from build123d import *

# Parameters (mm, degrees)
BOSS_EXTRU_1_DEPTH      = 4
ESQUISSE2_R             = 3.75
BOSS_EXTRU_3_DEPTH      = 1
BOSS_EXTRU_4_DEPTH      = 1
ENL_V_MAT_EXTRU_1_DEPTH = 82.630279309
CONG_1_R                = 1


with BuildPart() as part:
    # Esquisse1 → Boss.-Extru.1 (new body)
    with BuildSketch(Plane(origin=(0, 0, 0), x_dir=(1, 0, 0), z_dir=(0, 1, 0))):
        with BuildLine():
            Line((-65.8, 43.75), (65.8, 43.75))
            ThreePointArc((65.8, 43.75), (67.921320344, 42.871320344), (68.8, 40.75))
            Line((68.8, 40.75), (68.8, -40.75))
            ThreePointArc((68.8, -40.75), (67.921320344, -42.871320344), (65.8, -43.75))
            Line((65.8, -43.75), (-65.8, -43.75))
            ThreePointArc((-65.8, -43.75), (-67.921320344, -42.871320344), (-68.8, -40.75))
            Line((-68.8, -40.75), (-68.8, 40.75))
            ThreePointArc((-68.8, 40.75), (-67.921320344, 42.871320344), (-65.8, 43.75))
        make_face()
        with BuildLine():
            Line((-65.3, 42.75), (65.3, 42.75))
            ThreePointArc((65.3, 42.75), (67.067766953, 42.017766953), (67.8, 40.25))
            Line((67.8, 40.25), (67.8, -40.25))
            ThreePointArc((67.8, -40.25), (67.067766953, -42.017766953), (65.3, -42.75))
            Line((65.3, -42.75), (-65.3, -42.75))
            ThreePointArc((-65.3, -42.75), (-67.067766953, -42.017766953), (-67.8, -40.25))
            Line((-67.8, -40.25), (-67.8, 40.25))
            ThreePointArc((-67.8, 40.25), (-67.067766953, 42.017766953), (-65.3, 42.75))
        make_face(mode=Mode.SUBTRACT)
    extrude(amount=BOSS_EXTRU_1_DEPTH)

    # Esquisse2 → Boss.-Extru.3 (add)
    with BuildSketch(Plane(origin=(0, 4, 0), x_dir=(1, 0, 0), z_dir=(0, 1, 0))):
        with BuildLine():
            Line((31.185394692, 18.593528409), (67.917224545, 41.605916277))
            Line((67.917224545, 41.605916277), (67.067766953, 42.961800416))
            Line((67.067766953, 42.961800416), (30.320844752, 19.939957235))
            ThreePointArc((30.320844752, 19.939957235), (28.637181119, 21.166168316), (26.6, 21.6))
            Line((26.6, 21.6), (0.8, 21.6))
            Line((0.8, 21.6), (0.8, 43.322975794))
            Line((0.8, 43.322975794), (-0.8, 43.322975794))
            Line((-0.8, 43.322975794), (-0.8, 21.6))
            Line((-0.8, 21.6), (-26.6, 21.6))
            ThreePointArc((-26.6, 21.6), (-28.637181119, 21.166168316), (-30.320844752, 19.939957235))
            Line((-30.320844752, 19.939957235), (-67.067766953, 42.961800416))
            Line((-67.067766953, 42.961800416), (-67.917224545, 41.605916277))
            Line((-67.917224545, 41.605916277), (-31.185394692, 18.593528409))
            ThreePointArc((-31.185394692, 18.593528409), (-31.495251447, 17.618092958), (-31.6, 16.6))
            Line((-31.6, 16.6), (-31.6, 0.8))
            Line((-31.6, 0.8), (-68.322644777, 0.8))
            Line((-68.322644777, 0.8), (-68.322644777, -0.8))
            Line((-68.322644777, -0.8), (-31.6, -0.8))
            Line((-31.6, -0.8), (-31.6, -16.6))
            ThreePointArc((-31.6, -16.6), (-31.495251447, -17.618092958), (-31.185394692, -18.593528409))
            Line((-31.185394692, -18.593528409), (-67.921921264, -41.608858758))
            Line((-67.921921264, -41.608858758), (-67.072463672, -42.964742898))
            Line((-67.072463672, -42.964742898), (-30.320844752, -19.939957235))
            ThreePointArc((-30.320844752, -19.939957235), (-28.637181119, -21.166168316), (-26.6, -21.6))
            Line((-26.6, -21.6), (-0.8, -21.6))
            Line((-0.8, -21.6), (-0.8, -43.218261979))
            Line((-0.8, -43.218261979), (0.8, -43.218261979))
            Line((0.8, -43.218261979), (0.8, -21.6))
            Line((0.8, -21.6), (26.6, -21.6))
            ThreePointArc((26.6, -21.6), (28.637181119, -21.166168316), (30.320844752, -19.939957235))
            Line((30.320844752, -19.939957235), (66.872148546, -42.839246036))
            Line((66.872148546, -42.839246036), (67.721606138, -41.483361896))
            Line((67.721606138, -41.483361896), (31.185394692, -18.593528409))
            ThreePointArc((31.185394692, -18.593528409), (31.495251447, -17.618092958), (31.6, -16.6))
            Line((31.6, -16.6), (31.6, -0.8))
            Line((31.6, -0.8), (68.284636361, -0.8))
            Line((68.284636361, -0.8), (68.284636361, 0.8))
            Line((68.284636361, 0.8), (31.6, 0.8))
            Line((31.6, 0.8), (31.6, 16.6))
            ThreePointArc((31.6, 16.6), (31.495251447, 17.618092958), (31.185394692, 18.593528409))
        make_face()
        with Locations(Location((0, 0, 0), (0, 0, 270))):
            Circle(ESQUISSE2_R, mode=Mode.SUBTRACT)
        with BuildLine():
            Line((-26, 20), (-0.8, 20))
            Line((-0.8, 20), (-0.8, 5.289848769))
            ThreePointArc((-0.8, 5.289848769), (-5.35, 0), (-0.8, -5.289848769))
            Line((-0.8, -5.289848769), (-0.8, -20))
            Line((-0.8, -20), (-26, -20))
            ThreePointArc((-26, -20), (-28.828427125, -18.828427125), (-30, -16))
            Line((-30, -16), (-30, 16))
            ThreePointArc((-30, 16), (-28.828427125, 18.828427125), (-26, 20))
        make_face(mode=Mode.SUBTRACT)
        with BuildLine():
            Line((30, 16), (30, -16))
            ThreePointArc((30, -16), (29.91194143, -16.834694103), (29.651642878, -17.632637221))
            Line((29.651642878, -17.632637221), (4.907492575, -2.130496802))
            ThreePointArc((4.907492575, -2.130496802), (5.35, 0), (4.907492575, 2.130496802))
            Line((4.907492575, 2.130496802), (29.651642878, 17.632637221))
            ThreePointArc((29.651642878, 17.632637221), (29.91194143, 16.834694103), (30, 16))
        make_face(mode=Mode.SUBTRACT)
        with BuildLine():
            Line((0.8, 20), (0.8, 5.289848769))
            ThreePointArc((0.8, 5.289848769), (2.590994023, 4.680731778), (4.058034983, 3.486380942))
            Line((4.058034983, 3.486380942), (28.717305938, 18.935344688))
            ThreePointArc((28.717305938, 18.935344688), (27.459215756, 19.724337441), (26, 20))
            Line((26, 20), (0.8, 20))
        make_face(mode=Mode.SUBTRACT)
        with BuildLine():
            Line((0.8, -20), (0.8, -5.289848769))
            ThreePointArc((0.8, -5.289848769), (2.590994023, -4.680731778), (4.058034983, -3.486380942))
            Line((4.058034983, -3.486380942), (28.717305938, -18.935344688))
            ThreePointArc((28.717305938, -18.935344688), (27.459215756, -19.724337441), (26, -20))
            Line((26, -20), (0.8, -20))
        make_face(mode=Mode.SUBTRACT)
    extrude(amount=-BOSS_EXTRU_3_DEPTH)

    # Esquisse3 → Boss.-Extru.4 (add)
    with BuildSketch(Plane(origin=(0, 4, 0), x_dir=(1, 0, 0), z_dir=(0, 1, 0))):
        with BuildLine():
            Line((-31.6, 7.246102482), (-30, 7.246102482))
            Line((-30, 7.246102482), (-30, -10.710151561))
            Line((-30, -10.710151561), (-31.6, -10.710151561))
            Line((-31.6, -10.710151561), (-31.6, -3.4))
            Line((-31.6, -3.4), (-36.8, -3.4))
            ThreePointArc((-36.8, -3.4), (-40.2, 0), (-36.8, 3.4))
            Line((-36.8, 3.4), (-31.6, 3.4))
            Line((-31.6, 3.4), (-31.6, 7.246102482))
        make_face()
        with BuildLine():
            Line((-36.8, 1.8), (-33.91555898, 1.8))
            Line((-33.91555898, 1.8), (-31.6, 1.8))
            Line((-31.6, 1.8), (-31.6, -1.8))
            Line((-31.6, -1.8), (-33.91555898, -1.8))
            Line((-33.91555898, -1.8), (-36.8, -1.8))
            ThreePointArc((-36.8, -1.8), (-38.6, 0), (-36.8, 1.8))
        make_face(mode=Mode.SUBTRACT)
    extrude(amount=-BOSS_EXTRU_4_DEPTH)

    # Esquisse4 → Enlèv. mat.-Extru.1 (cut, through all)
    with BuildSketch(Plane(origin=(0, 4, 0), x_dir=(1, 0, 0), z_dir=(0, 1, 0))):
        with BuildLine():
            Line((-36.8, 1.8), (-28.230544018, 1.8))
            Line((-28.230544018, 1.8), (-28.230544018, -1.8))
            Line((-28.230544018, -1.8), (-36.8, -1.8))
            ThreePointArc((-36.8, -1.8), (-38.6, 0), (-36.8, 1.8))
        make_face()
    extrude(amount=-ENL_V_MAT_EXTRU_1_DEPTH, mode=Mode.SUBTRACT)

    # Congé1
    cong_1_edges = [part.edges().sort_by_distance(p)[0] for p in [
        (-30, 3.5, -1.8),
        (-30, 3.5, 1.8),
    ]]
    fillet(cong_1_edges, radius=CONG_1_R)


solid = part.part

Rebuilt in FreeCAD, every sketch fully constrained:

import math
import FreeCAD as App
import Part
import Sketcher

V = App.Vector


def edges_at(feature, points):
    """Names of the edges that pass closest to the given points."""
    edges = feature.Shape.Edges
    near = lambda p: min(range(len(edges)), key=lambda i: edges[i].distToShape(Part.Vertex(*p))[0])
    return sorted({f"Edge{near(p) + 1}" for p in points})

doc = App.newDocument("Part")
params = doc.addObject("Spreadsheet::Sheet", "Params")
for row, (alias, value) in enumerate([
    ("sketch1_radius", "3 mm"),
    ("sketch1_radius2", "2.5 mm"),
    ("sketch1_width", "131.6 mm"),
    ("sketch1_width2", "130.6 mm"),
    ("sketch1_height", "81.5 mm"),
    ("pad1_length", "4 mm"),
    ("sketch2_radius", "5 mm"),
    ("sketch2_radius2", "5 mm"),
    ("sketch2_radius3", "5 mm"),
    ("sketch2_radius4", "5 mm"),
    ("sketch2_radius5", "5 mm"),
    ("pad2_length", "1 mm"),
    ("sketch3_radius", "3.4 mm"),
    ("sketch3_radius2", "1.8 mm"),
    ("sketch3_width", "1.6 mm"),
    ("sketch3_width2", "5.2 mm"),
    ("pad3_length", "1 mm"),
    ("sketch4_radius", "1.8 mm"),
    ("fillet_radius", "1 mm"),
], start=1):
    params.set(f"A{row}", alias)
    params.set(f"B{row}", "=" + value)
    params.setAlias(f"B{row}", alias)

body = doc.addObject("PartDesign::Body", "Body")

sketch1 = body.newObject("Sketcher::SketchObject", "Sketch")
sketch1.AttachmentSupport = (doc.getObject("XZ_Plane"), [""])
sketch1.MapMode = "FlatFace"
sketch1.addGeometry([
    Part.LineSegment(V(65.8, -43.8, 0), V(-65.8, -43.8, 0)),
    Part.ArcOfCircle(Part.Circle(V(-65.8, -40.8, 0), V(0, 0, 1), 3), math.radians(180), math.radians(270)),
    Part.LineSegment(V(-68.8, -40.8, 0), V(-68.8, 40.8, 0)),
    Part.ArcOfCircle(Part.Circle(V(-65.8, 40.8, 0), V(0, 0, 1), 3), math.radians(90), math.radians(180)),
    Part.LineSegment(V(-65.8, 43.8, 0), V(65.8, 43.8, 0)),
    Part.ArcOfCircle(Part.Circle(V(65.8, 40.8, 0), V(0, 0, 1), 3), math.radians(0), math.radians(90)),
    Part.LineSegment(V(68.8, 40.8, 0), V(68.8, -40.8, 0)),
    Part.ArcOfCircle(Part.Circle(V(65.8, -40.8, 0), V(0, 0, 1), 3), math.radians(-90), math.radians(0)),
    Part.LineSegment(V(-65.3, -42.8, 0), V(65.3, -42.8, 0)),
    Part.ArcOfCircle(Part.Circle(V(65.3, -40.2, 0), V(0, 0, 1), 2.5), math.radians(-90), math.radians(0)),
    Part.LineSegment(V(67.8, -40.2, 0), V(67.8, 40.2, 0)),
    Part.ArcOfCircle(Part.Circle(V(65.3, 40.2, 0), V(0, 0, 1), 2.5), math.radians(0), math.radians(90)),
    Part.LineSegment(V(65.3, 42.8, 0), V(-65.3, 42.8, 0)),
    Part.ArcOfCircle(Part.Circle(V(-65.3, 40.2, 0), V(0, 0, 1), 2.5), math.radians(90), math.radians(180)),
    Part.LineSegment(V(-67.8, 40.2, 0), V(-67.8, -40.2, 0)),
    Part.ArcOfCircle(Part.Circle(V(-65.3, -40.2, 0), V(0, 0, 1), 2.5), math.radians(180), math.radians(270)),
], False)
sketch1.addConstraint([
    Sketcher.Constraint("Tangent", 0, 2, 1, 2),
    Sketcher.Constraint("Tangent", 1, 1, 2, 1),
    Sketcher.Constraint("Tangent", 2, 2, 3, 2),
    Sketcher.Constraint("Tangent", 3, 1, 4, 1),
    Sketcher.Constraint("Tangent", 4, 2, 5, 2),
    Sketcher.Constraint("Tangent", 5, 1, 6, 1),
    Sketcher.Constraint("Tangent", 6, 2, 7, 2),
    Sketcher.Constraint("Tangent", 7, 1, 0, 1),
    Sketcher.Constraint("Tangent", 8, 2, 9, 1),
    Sketcher.Constraint("Tangent", 9, 2, 10, 1),
    Sketcher.Constraint("Tangent", 10, 2, 11, 1),
    Sketcher.Constraint("Tangent", 11, 2, 12, 1),
    Sketcher.Constraint("Tangent", 12, 2, 13, 1),
    Sketcher.Constraint("Tangent", 13, 2, 14, 1),
    Sketcher.Constraint("Tangent", 14, 2, 15, 1),
    Sketcher.Constraint("Tangent", 15, 2, 8, 1),
    Sketcher.Constraint("Horizontal", 0),
    Sketcher.Constraint("Vertical", 2),
    Sketcher.Constraint("Horizontal", 4),
    Sketcher.Constraint("Vertical", 6),
    Sketcher.Constraint("Horizontal", 8),
    Sketcher.Constraint("Vertical", 10),
    Sketcher.Constraint("Horizontal", 12),
    Sketcher.Constraint("Vertical", 14),
    Sketcher.Constraint("Equal", 1, 3),
    Sketcher.Constraint("Equal", 3, 5),
    Sketcher.Constraint("Equal", 5, 7),
    Sketcher.Constraint("Equal", 9, 11),
    Sketcher.Constraint("Equal", 11, 13),
    Sketcher.Constraint("Equal", 13, 15),
    Sketcher.Constraint("Symmetric", 1, 3, 5, 3, -1, 1),
    Sketcher.Constraint("Symmetric", 9, 3, 13, 3, -1, 1),
    Sketcher.Constraint("Radius", 1, 3.0),
    Sketcher.Constraint("Radius", 9, 2.5),
    Sketcher.Constraint("DistanceX", 0, 2, 0, 1, 131.6),
    Sketcher.Constraint("DistanceX", 8, 1, 8, 2, 130.6),
    Sketcher.Constraint("DistanceY", 2, 1, 2, 2, 81.5),
    Sketcher.Constraint("DistanceY", 10, 1, 10, 2, 80.5),
])
sketch1.setExpression("Constraints[32]", "Params.sketch1_radius")
sketch1.setExpression("Constraints[33]", "Params.sketch1_radius2")
sketch1.setExpression("Constraints[34]", "Params.sketch1_width")
sketch1.setExpression("Constraints[35]", "Params.sketch1_width2")
sketch1.setExpression("Constraints[36]", "Params.sketch1_height")
pad1 = body.newObject("PartDesign::Pad", "Pad")
pad1.Profile = sketch1
pad1.setExpression("Length", "Params.pad1_length")
pad1.Reversed = True

sketch2 = body.newObject("Sketcher::SketchObject", "Sketch001")
sketch2.AttachmentSupport = (doc.getObject("XZ_Plane"), [""])
sketch2.MapMode = "FlatFace"
sketch2.AttachmentOffset = App.Placement(V(0, 0, -4), App.Rotation())
sketch2.addGeometry([
    Part.LineSegment(V(31.185395, -18.593528, 0), V(67.917225, -41.605916, 0)),
    Part.LineSegment(V(67.917225, -41.605916, 0), V(67.067767, -42.9618, 0)),
    Part.LineSegment(V(67.067767, -42.9618, 0), V(30.320845, -19.939957, 0)),
    Part.ArcOfCircle(Part.Circle(V(26.6, -16.6, 0), V(0, 0, 1), 5), math.radians(-90), math.radians(-41.912232)),
    Part.LineSegment(V(26.6, -21.6, 0), V(0.8, -21.6, 0)),
    Part.LineSegment(V(0.8, -21.6, 0), V(0.8, -43.322976, 0)),
    Part.LineSegment(V(0.8, -43.322976, 0), V(-0.8, -43.322976, 0)),
    Part.LineSegment(V(-0.8, -43.322976, 0), V(-0.8, -21.6, 0)),
    Part.LineSegment(V(-0.8, -21.6, 0), V(-26.6, -21.6, 0)),
    Part.ArcOfCircle(Part.Circle(V(-26.6, -16.6, 0), V(0, 0, 1), 5), math.radians(-138.087768), math.radians(-90)),
    Part.LineSegment(V(-30.320845, -19.939957, 0), V(-67.067767, -42.9618, 0)),
    Part.LineSegment(V(-67.067767, -42.9618, 0), V(-67.917225, -41.605916, 0)),
    Part.LineSegment(V(-67.917225, -41.605916, 0), V(-31.185395, -18.593528, 0)),
    Part.ArcOfCircle(Part.Circle(V(-26.6, -16.6, 0), V(0, 0, 1), 5), math.radians(180), math.radians(203.497289)),
    Part.LineSegment(V(-31.6, -16.6, 0), V(-31.6, -0.8, 0)),
    Part.LineSegment(V(-31.6, -0.8, 0), V(-68.322645, -0.8, 0)),
    Part.LineSegment(V(-68.322645, -0.8, 0), V(-68.322645, 0.8, 0)),
    Part.LineSegment(V(-68.322645, 0.8, 0), V(-31.6, 0.8, 0)),
    Part.LineSegment(V(-31.6, 0.8, 0), V(-31.6, 16.6, 0)),
    Part.ArcOfCircle(Part.Circle(V(-26.6, 16.6, 0), V(0, 0, 1), 5), math.radians(156.502711), math.radians(180)),
    Part.LineSegment(V(-31.185395, 18.593528, 0), V(-67.921921, 41.608859, 0)),
    Part.LineSegment(V(-67.921921, 41.608859, 0), V(-67.072464, 42.964743, 0)),
    Part.LineSegment(V(-67.072464, 42.964743, 0), V(-30.320845, 19.939957, 0)),
    Part.ArcOfCircle(Part.Circle(V(-26.6, 16.6, 0), V(0, 0, 1), 5), math.radians(90), math.radians(138.087768)),
    Part.LineSegment(V(-26.6, 21.6, 0), V(-0.8, 21.6, 0)),
    Part.LineSegment(V(-0.8, 21.6, 0), V(-0.8, 43.218262, 0)),
    Part.LineSegment(V(-0.8, 43.218262, 0), V(0.8, 43.218262, 0)),
    Part.LineSegment(V(0.8, 43.218262, 0), V(0.8, 21.6, 0)),
    Part.LineSegment(V(0.8, 21.6, 0), V(26.6, 21.6, 0)),
    Part.ArcOfCircle(Part.Circle(V(26.6, 16.6, 0), V(0, 0, 1), 5), math.radians(41.912232), math.radians(90)),
    Part.LineSegment(V(30.320845, 19.939957, 0), V(66.872149, 42.839246, 0)),
    Part.LineSegment(V(66.872149, 42.839246, 0), V(67.721606, 41.483362, 0)),
    Part.LineSegment(V(67.721606, 41.483362, 0), V(31.185395, 18.593528, 0)),
    Part.ArcOfCircle(Part.Circle(V(26.6, 16.6, 0), V(0, 0, 1), 5), math.radians(0), math.radians(23.497289)),
    Part.LineSegment(V(31.6, 16.6, 0), V(31.6, 0.8, 0)),
    Part.LineSegment(V(31.6, 0.8, 0), V(68.284636, 0.8, 0)),
    Part.LineSegment(V(68.284636, 0.8, 0), V(68.284636, -0.8, 0)),
    Part.LineSegment(V(68.284636, -0.8, 0), V(31.6, -0.8, 0)),
    Part.LineSegment(V(31.6, -0.8, 0), V(31.6, -16.6, 0)),
    Part.ArcOfCircle(Part.Circle(V(26.6, -16.6, 0), V(0, 0, 1), 5), math.radians(-23.497289), math.radians(0)),
    Part.LineSegment(V(26, 20, 0), V(0.8, 20, 0)),
    Part.LineSegment(V(0.8, 20, 0), V(0.8, 5.289849, 0)),
    Part.ArcOfCircle(Part.Circle(V(0, 0, 0), V(0, 0, 1), 5.35), math.radians(40.666875), math.radians(81.400153)),
    Part.LineSegment(V(4.058035, 3.486381, 0), V(28.717306, 18.935345, 0)),
    Part.ArcOfCircle(Part.Circle(V(26, 16, 0), V(0, 0, 1), 4), math.radians(47.208965), math.radians(90)),
    Part.ArcOfCircle(Part.Circle(V(-26, -16, 0), V(0, 0, 1), 4), math.radians(180), math.radians(270)),
    Part.LineSegment(V(-26, -20, 0), V(-0.8, -20, 0)),
    Part.LineSegment(V(-0.8, -20, 0), V(-0.8, -5.289849, 0)),
    Part.ArcOfCircle(Part.Circle(V(0, 0, 0), V(0, 0, 1), 5.35), math.radians(98.599847), math.radians(261.400153)),
    Part.LineSegment(V(-0.8, 5.289849, 0), V(-0.8, 20, 0)),
    Part.LineSegment(V(-0.8, 20, 0), V(-26, 20, 0)),
    Part.ArcOfCircle(Part.Circle(V(-26, 16, 0), V(0, 0, 1), 4), math.radians(90), math.radians(180)),
    Part.LineSegment(V(-30, 16, 0), V(-30, -16, 0)),
    Part.Circle(V(0, 0, 0), V(0, 0, 1), 3.75),
    Part.ArcOfCircle(Part.Circle(V(26, -16, 0), V(0, 0, 1), 4), math.radians(-24.089257), math.radians(0)),
    Part.LineSegment(V(30, -16, 0), V(30, 16, 0)),
    Part.ArcOfCircle(Part.Circle(V(26, 16, 0), V(0, 0, 1), 4), math.radians(0), math.radians(24.089257)),
    Part.LineSegment(V(29.651643, 17.632637, 0), V(4.907493, 2.130497, 0)),
    Part.ArcOfCircle(Part.Circle(V(0, 0, 0), V(0, 0, 1), 5.35), math.radians(-23.46718), math.radians(23.46718)),
    Part.LineSegment(V(4.907493, -2.130497, 0), V(29.651643, -17.632637, 0)),
    Part.LineSegment(V(0.8, -5.289849, 0), V(0.8, -20, 0)),
    Part.LineSegment(V(0.8, -20, 0), V(26, -20, 0)),
    Part.ArcOfCircle(Part.Circle(V(26, -16, 0), V(0, 0, 1), 4), math.radians(-90), math.radians(-47.208965)),
    Part.LineSegment(V(28.717306, -18.935345, 0), V(4.058035, -3.486381, 0)),
    Part.ArcOfCircle(Part.Circle(V(0, 0, 0), V(0, 0, 1), 5.35), math.radians(-81.400153), math.radians(-40.666875)),
], False)
sketch2.addConstraint([
    Sketcher.Constraint("Coincident", 0, 2, 1, 1),
    Sketcher.Constraint("Coincident", 1, 2, 2, 1),
    Sketcher.Constraint("Coincident", 2, 2, 3, 2),
    Sketcher.Constraint("Coincident", 3, 1, 4, 1),
    Sketcher.Constraint("Coincident", 4, 2, 5, 1),
    Sketcher.Constraint("Coincident", 5, 2, 6, 1),
    Sketcher.Constraint("Coincident", 6, 2, 7, 1),
    Sketcher.Constraint("Coincident", 7, 2, 8, 1),
    Sketcher.Constraint("Coincident", 8, 2, 9, 2),
    Sketcher.Constraint("Coincident", 9, 1, 10, 1),
    Sketcher.Constraint("Coincident", 10, 2, 11, 1),
    Sketcher.Constraint("Coincident", 11, 2, 12, 1),
    Sketcher.Constraint("Coincident", 12, 2, 13, 2),
    Sketcher.Constraint("Coincident", 13, 1, 14, 1),
    Sketcher.Constraint("Coincident", 14, 2, 15, 1),
    Sketcher.Constraint("Coincident", 15, 2, 16, 1),
    Sketcher.Constraint("Coincident", 16, 2, 17, 1),
    Sketcher.Constraint("Coincident", 17, 2, 18, 1),
    Sketcher.Constraint("Coincident", 18, 2, 19, 2),
    Sketcher.Constraint("Coincident", 19, 1, 20, 1),
    Sketcher.Constraint("Coincident", 20, 2, 21, 1),
    Sketcher.Constraint("Coincident", 21, 2, 22, 1),
    Sketcher.Constraint("Coincident", 22, 2, 23, 2),
    Sketcher.Constraint("Coincident", 23, 1, 24, 1),
    Sketcher.Constraint("Coincident", 24, 2, 25, 1),
    Sketcher.Constraint("Coincident", 25, 2, 26, 1),
    Sketcher.Constraint("Coincident", 26, 2, 27, 1),
    Sketcher.Constraint("Coincident", 27, 2, 28, 1),
    Sketcher.Constraint("Coincident", 28, 2, 29, 2),
    Sketcher.Constraint("Coincident", 29, 1, 30, 1),
    Sketcher.Constraint("Coincident", 30, 2, 31, 1),
    Sketcher.Constraint("Coincident", 31, 2, 32, 1),
    Sketcher.Constraint("Coincident", 32, 2, 33, 2),
    Sketcher.Constraint("Coincident", 33, 1, 34, 1),
    Sketcher.Constraint("Coincident", 34, 2, 35, 1),
    Sketcher.Constraint("Coincident", 35, 2, 36, 1),
    Sketcher.Constraint("Coincident", 36, 2, 37, 1),
    Sketcher.Constraint("Coincident", 37, 2, 38, 1),
    Sketcher.Constraint("Coincident", 38, 2, 39, 2),
    Sketcher.Constraint("Coincident", 39, 1, 0, 1),
    Sketcher.Constraint("Coincident", 40, 2, 41, 1),
    Sketcher.Constraint("Coincident", 41, 2, 42, 2),
    Sketcher.Constraint("Coincident", 42, 1, 43, 1),
    Sketcher.Constraint("Coincident", 43, 2, 44, 1),
    Sketcher.Constraint("Coincident", 44, 2, 40, 1),
    Sketcher.Constraint("Coincident", 45, 2, 46, 1),
    Sketcher.Constraint("Coincident", 46, 2, 47, 1),
    Sketcher.Constraint("Coincident", 47, 2, 48, 2),
    Sketcher.Constraint("Coincident", 48, 1, 49, 1),
    Sketcher.Constraint("Coincident", 49, 2, 50, 1),
    Sketcher.Constraint("Coincident", 50, 2, 51, 1),
    Sketcher.Constraint("Coincident", 51, 2, 52, 1),
    Sketcher.Constraint("Coincident", 52, 2, 45, 1),
    Sketcher.Constraint("Coincident", 54, 2, 55, 1),
    Sketcher.Constraint("Coincident", 55, 2, 56, 1),
    Sketcher.Constraint("Coincident", 56, 2, 57, 1),
    Sketcher.Constraint("Coincident", 57, 2, 58, 2),
    Sketcher.Constraint("Coincident", 58, 1, 59, 1),
    Sketcher.Constraint("Coincident", 59, 2, 54, 1),
    Sketcher.Constraint("Coincident", 60, 2, 61, 1),
    Sketcher.Constraint("Coincident", 61, 2, 62, 1),
    Sketcher.Constraint("Coincident", 62, 2, 63, 1),
    Sketcher.Constraint("Coincident", 63, 2, 64, 2),
    Sketcher.Constraint("Coincident", 64, 1, 60, 1),
    Sketcher.Constraint("Horizontal", 4),
    Sketcher.Constraint("Vertical", 5),
    Sketcher.Constraint("Horizontal", 6),
    Sketcher.Constraint("Vertical", 7),
    Sketcher.Constraint("Horizontal", 8),
    Sketcher.Constraint("Vertical", 14),
    Sketcher.Constraint("Horizontal", 15),
    Sketcher.Constraint("Vertical", 16),
    Sketcher.Constraint("Horizontal", 17),
    Sketcher.Constraint("Vertical", 18),
    Sketcher.Constraint("Horizontal", 24),
    Sketcher.Constraint("Vertical", 25),
    Sketcher.Constraint("Horizontal", 26),
    Sketcher.Constraint("Vertical", 27),
    Sketcher.Constraint("Horizontal", 28),
    Sketcher.Constraint("Vertical", 34),
    Sketcher.Constraint("Horizontal", 35),
    Sketcher.Constraint("Vertical", 36),
    Sketcher.Constraint("Horizontal", 37),
    Sketcher.Constraint("Vertical", 38),
    Sketcher.Constraint("Horizontal", 40),
    Sketcher.Constraint("Vertical", 41),
    Sketcher.Constraint("Horizontal", 46),
    Sketcher.Constraint("Vertical", 47),
    Sketcher.Constraint("Vertical", 49),
    Sketcher.Constraint("Horizontal", 50),
    Sketcher.Constraint("Vertical", 52),
    Sketcher.Constraint("Vertical", 55),
    Sketcher.Constraint("Vertical", 60),
    Sketcher.Constraint("Horizontal", 61),
    Sketcher.Constraint("Coincident", 42, 3, -1, 1),
    Sketcher.Constraint("Coincident", 48, 3, -1, 1),
    Sketcher.Constraint("Coincident", 53, 3, -1, 1),
    Sketcher.Constraint("Coincident", 58, 3, -1, 1),
    Sketcher.Constraint("Coincident", 64, 3, -1, 1),
    Sketcher.Constraint("Coincident", 13, 3, 9, 3),
    Sketcher.Constraint("Coincident", 23, 3, 19, 3),
    Sketcher.Constraint("Coincident", 33, 3, 29, 3),
    Sketcher.Constraint("Coincident", 39, 3, 3, 3),
    Sketcher.Constraint("Coincident", 56, 3, 44, 3),
    Sketcher.Constraint("Coincident", 62, 3, 54, 3),
    Sketcher.Constraint("Radius", 3, 5.0),
    Sketcher.Constraint("Radius", 9, 5.0),
    Sketcher.Constraint("Radius", 13, 5.0),
    Sketcher.Constraint("Radius", 19, 5.0),
    Sketcher.Constraint("Radius", 23, 5.0),
    Sketcher.Constraint("Radius", 29, 5.0),
    Sketcher.Constraint("Radius", 33, 5.0),
    Sketcher.Constraint("Radius", 39, 5.0),
    Sketcher.Constraint("Radius", 44, 4.0),
    Sketcher.Constraint("Radius", 45, 4.0),
    Sketcher.Constraint("Radius", 51, 4.0),
    Sketcher.Constraint("Radius", 54, 4.0),
    Sketcher.Constraint("Radius", 56, 4.0),
    Sketcher.Constraint("Radius", 62, 4.0),
    Sketcher.Constraint("Diameter", 53, 7.5),
    Sketcher.Constraint("DistanceY", 52, 2, 52, 1, 32.0),
    Sketcher.Constraint("DistanceY", 55, 1, 55, 2, 32.0),
    Sketcher.Constraint("Radius", 42, 5.35),
    Sketcher.Constraint("Radius", 48, 5.35),
    Sketcher.Constraint("Radius", 58, 5.35),
    Sketcher.Constraint("Radius", 64, 5.35),
    Sketcher.Constraint("DistanceX", 4, 2, 4, 1, 25.8),
    Sketcher.Constraint("DistanceX", 6, 2, 6, 1, 1.6),
    Sketcher.Constraint("DistanceX", 8, 2, 8, 1, 25.8),
    Sketcher.Constraint("DistanceX", 24, 1, 24, 2, 25.8),
    Sketcher.Constraint("DistanceX", 26, 1, 26, 2, 1.6),
    Sketcher.Constraint("DistanceX", 28, 1, 28, 2, 25.8),
    Sketcher.Constraint("DistanceX", 40, 2, 40, 1, 25.2),
    Sketcher.Constraint("DistanceX", 46, 1, 46, 2, 25.2),
    Sketcher.Constraint("DistanceX", 50, 2, 50, 1, 25.2),
    Sketcher.Constraint("DistanceX", 61, 1, 61, 2, 25.2),
    Sketcher.Constraint("DistanceY", 14, 1, 14, 2, 15.8),
    Sketcher.Constraint("DistanceY", 16, 1, 16, 2, 1.6),
    Sketcher.Constraint("DistanceY", 18, 1, 18, 2, 15.8),
    Sketcher.Constraint("DistanceY", 34, 2, 34, 1, 15.8),
    Sketcher.Constraint("DistanceY", 36, 2, 36, 1, 1.6),
    Sketcher.Constraint("DistanceY", 38, 2, 38, 1, 15.8),
    Sketcher.Constraint("DistanceX", -1, 1, 44, 3, 26.0),
    Sketcher.Constraint("DistanceY", -1, 1, 44, 3, 16.0),
    Sketcher.Constraint("DistanceX", 45, 3, -1, 1, 26.0),
    Sketcher.Constraint("DistanceY", 45, 3, -1, 1, 16.0),
    Sketcher.Constraint("DistanceY", -1, 1, 51, 3, 16.0),
    Sketcher.Constraint("DistanceY", 54, 3, -1, 1, 16.0),
    Sketcher.Constraint("DistanceX", -1, 1, 44, 2, 26.0),
    Sketcher.Constraint("DistanceX", 45, 2, -1, 1, 26.0),
    Sketcher.Constraint("DistanceX", 50, 2, -1, 1, 26.0),
    Sketcher.Constraint("DistanceY", -1, 1, 51, 2, 16.0),
    Sketcher.Constraint("DistanceY", 54, 2, -1, 1, 16.0),
    Sketcher.Constraint("DistanceX", -1, 1, 61, 2, 26.0),
    Sketcher.Constraint("Distance", 1, 1.6),
    Sketcher.Constraint("Distance", 11, 1.6),
    Sketcher.Constraint("Distance", 21, 1.6),
    Sketcher.Constraint("Distance", 31, 1.6),
    Sketcher.Constraint("DistanceX", -1, 1, 3, 3, 26.6),
    Sketcher.Constraint("DistanceY", 3, 3, -1, 1, 16.6),
    Sketcher.Constraint("DistanceX", 9, 3, -1, 1, 26.6),
    Sketcher.Constraint("DistanceY", 9, 3, -1, 1, 16.6),
    Sketcher.Constraint("DistanceX", 19, 3, -1, 1, 26.6),
    Sketcher.Constraint("DistanceY", -1, 1, 19, 3, 16.6),
    Sketcher.Constraint("DistanceX", -1, 1, 29, 3, 26.6),
    Sketcher.Constraint("DistanceY", -1, 1, 29, 3, 16.6),
    Sketcher.Constraint("DistanceX", -1, 1, 3, 1, 26.6),
    Sketcher.Constraint("DistanceY", 13, 1, -1, 1, 16.6),
    Sketcher.Constraint("DistanceX", 23, 1, -1, 1, 26.6),
    Sketcher.Constraint("DistanceY", -1, 1, 33, 1, 16.6),
    Sketcher.Constraint("DistanceY", 25, 1, 25, 2, 21.618262),
    Sketcher.Constraint("DistanceY", 1, 2, -1, 1, 42.9618),
    Sketcher.Constraint("DistanceY", 10, 2, -1, 1, 42.9618),
    Sketcher.Constraint("Distance", 20, 43.350638),
    Sketcher.Constraint("Distance", 43, 29.098971),
    Sketcher.Constraint("Distance", 63, 29.098971),
    Sketcher.Constraint("DistanceX", 15, 2, 15, 1, 36.722645),
    Sketcher.Constraint("DistanceX", 35, 1, 35, 2, 36.684636),
    Sketcher.Constraint("DistanceY", 5, 2, 5, 1, 21.722976),
    Sketcher.Constraint("DistanceY", 12, 2, -1, 1, 18.593528),
    Sketcher.Constraint("DistanceY", -1, 1, 19, 1, 18.593528),
    Sketcher.Constraint("DistanceX", 20, 2, -1, 1, 67.921921),
    Sketcher.Constraint("DistanceX", -1, 1, 30, 2, 66.872149),
    Sketcher.Constraint("DistanceY", -1, 1, 31, 2, 41.483362),
    Sketcher.Constraint("DistanceY", -1, 1, 32, 2, 18.593528),
    Sketcher.Constraint("DistanceY", 39, 1, -1, 1, 18.593528),
    Sketcher.Constraint("DistanceY", -1, 1, 42, 1, 3.486381),
    Sketcher.Constraint("DistanceY", 63, 2, -1, 1, 3.486381),
    Sketcher.Constraint("Distance", 0, 43.345096),
    Sketcher.Constraint("Distance", 2, 43.362905),
    Sketcher.Constraint("Distance", 10, 43.362905),
    Sketcher.Constraint("Distance", 12, 43.345096),
    Sketcher.Constraint("Distance", 22, 43.368448),
    Sketcher.Constraint("Distance", 30, 43.132067),
    Sketcher.Constraint("Distance", 32, 43.114258),
    Sketcher.Constraint("Distance", 57, 29.199132),
    Sketcher.Constraint("Distance", 59, 29.199132),
    Sketcher.Constraint("DistanceX", -1, 1, 0, 2, 67.917225),
    Sketcher.Constraint("DistanceX", 9, 1, -1, 1, 30.320845),
    Sketcher.Constraint("DistanceX", 21, 2, -1, 1, 67.072464),
    Sketcher.Constraint("DistanceX", -1, 1, 56, 2, 29.651643),
    Sketcher.Constraint("DistanceX", -1, 1, 58, 1, 4.907493),
])
sketch2.setExpression("Constraints[105]", "Params.sketch2_radius")
sketch2.setExpression("Constraints[106]", "Params.sketch2_radius2")
sketch2.setExpression("Constraints[107]", "Params.sketch2_radius3")
sketch2.setExpression("Constraints[108]", "Params.sketch2_radius4")
sketch2.setExpression("Constraints[109]", "Params.sketch2_radius5")
pad2 = body.newObject("PartDesign::Pad", "Pad001")
pad2.Profile = sketch2
pad2.setExpression("Length", "Params.pad2_length")

sketch3 = body.newObject("Sketcher::SketchObject", "Sketch002")
sketch3.AttachmentSupport = (doc.getObject("XZ_Plane"), [""])
sketch3.MapMode = "FlatFace"
sketch3.AttachmentOffset = App.Placement(V(0, 0, -4), App.Rotation())
sketch3.addGeometry([
    Part.LineSegment(V(-30, -7.2, 0), V(-31.6, -7.2, 0)),
    Part.LineSegment(V(-31.6, -7.2, 0), V(-31.6, -3.4, 0)),
    Part.LineSegment(V(-31.6, -3.4, 0), V(-36.8, -3.4, 0)),
    Part.ArcOfCircle(Part.Circle(V(-36.8, 0, 0), V(0, 0, 1), 3.4), math.radians(90), math.radians(270)),
    Part.LineSegment(V(-36.8, 3.4, 0), V(-31.6, 3.4, 0)),
    Part.LineSegment(V(-31.6, 3.4, 0), V(-31.6, 10.7, 0)),
    Part.LineSegment(V(-31.6, 10.7, 0), V(-30, 10.7, 0)),
    Part.LineSegment(V(-30, 10.7, 0), V(-30, -7.2, 0)),
    Part.LineSegment(V(-36.8, -1.8, 0), V(-31.6, -1.8, 0)),
    Part.LineSegment(V(-31.6, -1.8, 0), V(-31.6, 1.8, 0)),
    Part.LineSegment(V(-31.6, 1.8, 0), V(-36.8, 1.8, 0)),
    Part.ArcOfCircle(Part.Circle(V(-36.8, 0, 0), V(0, 0, 1), 1.8), math.radians(90), math.radians(270)),
], False)
sketch3.addConstraint([
    Sketcher.Constraint("Coincident", 0, 2, 1, 1),
    Sketcher.Constraint("Coincident", 1, 2, 2, 1),
    Sketcher.Constraint("Tangent", 2, 2, 3, 2),
    Sketcher.Constraint("Tangent", 3, 1, 4, 1),
    Sketcher.Constraint("Coincident", 4, 2, 5, 1),
    Sketcher.Constraint("Coincident", 5, 2, 6, 1),
    Sketcher.Constraint("Coincident", 6, 2, 7, 1),
    Sketcher.Constraint("Coincident", 7, 2, 0, 1),
    Sketcher.Constraint("Coincident", 8, 2, 9, 1),
    Sketcher.Constraint("Coincident", 9, 2, 10, 1),
    Sketcher.Constraint("Tangent", 10, 2, 11, 1),
    Sketcher.Constraint("Tangent", 11, 2, 8, 1),
    Sketcher.Constraint("Horizontal", 0),
    Sketcher.Constraint("Vertical", 1),
    Sketcher.Constraint("Horizontal", 2),
    Sketcher.Constraint("Horizontal", 4),
    Sketcher.Constraint("Vertical", 5),
    Sketcher.Constraint("Horizontal", 6),
    Sketcher.Constraint("Vertical", 7),
    Sketcher.Constraint("Horizontal", 8),
    Sketcher.Constraint("Vertical", 9),
    Sketcher.Constraint("Horizontal", 10),
    Sketcher.Constraint("Coincident", 11, 3, 3, 3),
    Sketcher.Constraint("Symmetric", 1, 2, 4, 2, -1),
    Sketcher.Constraint("Vertical", 5, 2, 8, 2),
    Sketcher.Constraint("Radius", 3, 3.4),
    Sketcher.Constraint("Radius", 11, 1.8),
    Sketcher.Constraint("DistanceX", 0, 2, 0, 1, 1.6),
    Sketcher.Constraint("DistanceX", 2, 2, 2, 1, 5.2),
    Sketcher.Constraint("DistanceX", 6, 2, -1, 1, 30.0),
    Sketcher.Constraint("DistanceY", 5, 1, 5, 2, 7.310152),
    Sketcher.Constraint("DistanceY", 1, 1, 1, 2, 3.846102),
])
sketch3.setExpression("Constraints[25]", "Params.sketch3_radius")
sketch3.setExpression("Constraints[26]", "Params.sketch3_radius2")
sketch3.setExpression("Constraints[27]", "Params.sketch3_width")
sketch3.setExpression("Constraints[28]", "Params.sketch3_width2")
pad3 = body.newObject("PartDesign::Pad", "Pad002")
pad3.Profile = sketch3
pad3.setExpression("Length", "Params.pad3_length")

sketch4 = body.newObject("Sketcher::SketchObject", "Sketch003")
sketch4.AttachmentSupport = (doc.getObject("XZ_Plane"), [""])
sketch4.MapMode = "FlatFace"
sketch4.AttachmentOffset = App.Placement(V(0, 0, -4), App.Rotation())
sketch4.addGeometry([
    Part.LineSegment(V(-28.2, -1.8, 0), V(-36.8, -1.8, 0)),
    Part.ArcOfCircle(Part.Circle(V(-36.8, 0, 0), V(0, 0, 1), 1.8), math.radians(90), math.radians(270)),
    Part.LineSegment(V(-36.8, 1.8, 0), V(-28.2, 1.8, 0)),
    Part.LineSegment(V(-28.2, 1.8, 0), V(-28.2, -1.8, 0)),
], False)
sketch4.addConstraint([
    Sketcher.Constraint("Tangent", 0, 2, 1, 2),
    Sketcher.Constraint("Tangent", 1, 1, 2, 1),
    Sketcher.Constraint("Coincident", 2, 2, 3, 1),
    Sketcher.Constraint("Coincident", 3, 2, 0, 1),
    Sketcher.Constraint("Horizontal", 0),
    Sketcher.Constraint("Horizontal", 2),
    Sketcher.Constraint("Vertical", 3),
    Sketcher.Constraint("PointOnObject", 1, 3, -1),
    Sketcher.Constraint("Radius", 1, 1.8),
    Sketcher.Constraint("DistanceX", 1, 3, -1, 1, 36.8),
    Sketcher.Constraint("DistanceX", 0, 2, 0, 1, 8.569456),
])
sketch4.setExpression("Constraints[8]", "Params.sketch4_radius")
pocket1 = body.newObject("PartDesign::Pocket", "Pocket")
pocket1.Profile = sketch4
pocket1.Type = "ThroughAll"
pocket1.Reversed = True
doc.recompute()

fillet = body.newObject("PartDesign::Fillet", "Fillet")
fillet.Base = (pocket1, edges_at(pocket1, [(-30, 3.5, -1.8), (-30, 3.5, 1.8)]))
fillet.setExpression("Radius", "Params.fillet_radius")

doc.recompute()
